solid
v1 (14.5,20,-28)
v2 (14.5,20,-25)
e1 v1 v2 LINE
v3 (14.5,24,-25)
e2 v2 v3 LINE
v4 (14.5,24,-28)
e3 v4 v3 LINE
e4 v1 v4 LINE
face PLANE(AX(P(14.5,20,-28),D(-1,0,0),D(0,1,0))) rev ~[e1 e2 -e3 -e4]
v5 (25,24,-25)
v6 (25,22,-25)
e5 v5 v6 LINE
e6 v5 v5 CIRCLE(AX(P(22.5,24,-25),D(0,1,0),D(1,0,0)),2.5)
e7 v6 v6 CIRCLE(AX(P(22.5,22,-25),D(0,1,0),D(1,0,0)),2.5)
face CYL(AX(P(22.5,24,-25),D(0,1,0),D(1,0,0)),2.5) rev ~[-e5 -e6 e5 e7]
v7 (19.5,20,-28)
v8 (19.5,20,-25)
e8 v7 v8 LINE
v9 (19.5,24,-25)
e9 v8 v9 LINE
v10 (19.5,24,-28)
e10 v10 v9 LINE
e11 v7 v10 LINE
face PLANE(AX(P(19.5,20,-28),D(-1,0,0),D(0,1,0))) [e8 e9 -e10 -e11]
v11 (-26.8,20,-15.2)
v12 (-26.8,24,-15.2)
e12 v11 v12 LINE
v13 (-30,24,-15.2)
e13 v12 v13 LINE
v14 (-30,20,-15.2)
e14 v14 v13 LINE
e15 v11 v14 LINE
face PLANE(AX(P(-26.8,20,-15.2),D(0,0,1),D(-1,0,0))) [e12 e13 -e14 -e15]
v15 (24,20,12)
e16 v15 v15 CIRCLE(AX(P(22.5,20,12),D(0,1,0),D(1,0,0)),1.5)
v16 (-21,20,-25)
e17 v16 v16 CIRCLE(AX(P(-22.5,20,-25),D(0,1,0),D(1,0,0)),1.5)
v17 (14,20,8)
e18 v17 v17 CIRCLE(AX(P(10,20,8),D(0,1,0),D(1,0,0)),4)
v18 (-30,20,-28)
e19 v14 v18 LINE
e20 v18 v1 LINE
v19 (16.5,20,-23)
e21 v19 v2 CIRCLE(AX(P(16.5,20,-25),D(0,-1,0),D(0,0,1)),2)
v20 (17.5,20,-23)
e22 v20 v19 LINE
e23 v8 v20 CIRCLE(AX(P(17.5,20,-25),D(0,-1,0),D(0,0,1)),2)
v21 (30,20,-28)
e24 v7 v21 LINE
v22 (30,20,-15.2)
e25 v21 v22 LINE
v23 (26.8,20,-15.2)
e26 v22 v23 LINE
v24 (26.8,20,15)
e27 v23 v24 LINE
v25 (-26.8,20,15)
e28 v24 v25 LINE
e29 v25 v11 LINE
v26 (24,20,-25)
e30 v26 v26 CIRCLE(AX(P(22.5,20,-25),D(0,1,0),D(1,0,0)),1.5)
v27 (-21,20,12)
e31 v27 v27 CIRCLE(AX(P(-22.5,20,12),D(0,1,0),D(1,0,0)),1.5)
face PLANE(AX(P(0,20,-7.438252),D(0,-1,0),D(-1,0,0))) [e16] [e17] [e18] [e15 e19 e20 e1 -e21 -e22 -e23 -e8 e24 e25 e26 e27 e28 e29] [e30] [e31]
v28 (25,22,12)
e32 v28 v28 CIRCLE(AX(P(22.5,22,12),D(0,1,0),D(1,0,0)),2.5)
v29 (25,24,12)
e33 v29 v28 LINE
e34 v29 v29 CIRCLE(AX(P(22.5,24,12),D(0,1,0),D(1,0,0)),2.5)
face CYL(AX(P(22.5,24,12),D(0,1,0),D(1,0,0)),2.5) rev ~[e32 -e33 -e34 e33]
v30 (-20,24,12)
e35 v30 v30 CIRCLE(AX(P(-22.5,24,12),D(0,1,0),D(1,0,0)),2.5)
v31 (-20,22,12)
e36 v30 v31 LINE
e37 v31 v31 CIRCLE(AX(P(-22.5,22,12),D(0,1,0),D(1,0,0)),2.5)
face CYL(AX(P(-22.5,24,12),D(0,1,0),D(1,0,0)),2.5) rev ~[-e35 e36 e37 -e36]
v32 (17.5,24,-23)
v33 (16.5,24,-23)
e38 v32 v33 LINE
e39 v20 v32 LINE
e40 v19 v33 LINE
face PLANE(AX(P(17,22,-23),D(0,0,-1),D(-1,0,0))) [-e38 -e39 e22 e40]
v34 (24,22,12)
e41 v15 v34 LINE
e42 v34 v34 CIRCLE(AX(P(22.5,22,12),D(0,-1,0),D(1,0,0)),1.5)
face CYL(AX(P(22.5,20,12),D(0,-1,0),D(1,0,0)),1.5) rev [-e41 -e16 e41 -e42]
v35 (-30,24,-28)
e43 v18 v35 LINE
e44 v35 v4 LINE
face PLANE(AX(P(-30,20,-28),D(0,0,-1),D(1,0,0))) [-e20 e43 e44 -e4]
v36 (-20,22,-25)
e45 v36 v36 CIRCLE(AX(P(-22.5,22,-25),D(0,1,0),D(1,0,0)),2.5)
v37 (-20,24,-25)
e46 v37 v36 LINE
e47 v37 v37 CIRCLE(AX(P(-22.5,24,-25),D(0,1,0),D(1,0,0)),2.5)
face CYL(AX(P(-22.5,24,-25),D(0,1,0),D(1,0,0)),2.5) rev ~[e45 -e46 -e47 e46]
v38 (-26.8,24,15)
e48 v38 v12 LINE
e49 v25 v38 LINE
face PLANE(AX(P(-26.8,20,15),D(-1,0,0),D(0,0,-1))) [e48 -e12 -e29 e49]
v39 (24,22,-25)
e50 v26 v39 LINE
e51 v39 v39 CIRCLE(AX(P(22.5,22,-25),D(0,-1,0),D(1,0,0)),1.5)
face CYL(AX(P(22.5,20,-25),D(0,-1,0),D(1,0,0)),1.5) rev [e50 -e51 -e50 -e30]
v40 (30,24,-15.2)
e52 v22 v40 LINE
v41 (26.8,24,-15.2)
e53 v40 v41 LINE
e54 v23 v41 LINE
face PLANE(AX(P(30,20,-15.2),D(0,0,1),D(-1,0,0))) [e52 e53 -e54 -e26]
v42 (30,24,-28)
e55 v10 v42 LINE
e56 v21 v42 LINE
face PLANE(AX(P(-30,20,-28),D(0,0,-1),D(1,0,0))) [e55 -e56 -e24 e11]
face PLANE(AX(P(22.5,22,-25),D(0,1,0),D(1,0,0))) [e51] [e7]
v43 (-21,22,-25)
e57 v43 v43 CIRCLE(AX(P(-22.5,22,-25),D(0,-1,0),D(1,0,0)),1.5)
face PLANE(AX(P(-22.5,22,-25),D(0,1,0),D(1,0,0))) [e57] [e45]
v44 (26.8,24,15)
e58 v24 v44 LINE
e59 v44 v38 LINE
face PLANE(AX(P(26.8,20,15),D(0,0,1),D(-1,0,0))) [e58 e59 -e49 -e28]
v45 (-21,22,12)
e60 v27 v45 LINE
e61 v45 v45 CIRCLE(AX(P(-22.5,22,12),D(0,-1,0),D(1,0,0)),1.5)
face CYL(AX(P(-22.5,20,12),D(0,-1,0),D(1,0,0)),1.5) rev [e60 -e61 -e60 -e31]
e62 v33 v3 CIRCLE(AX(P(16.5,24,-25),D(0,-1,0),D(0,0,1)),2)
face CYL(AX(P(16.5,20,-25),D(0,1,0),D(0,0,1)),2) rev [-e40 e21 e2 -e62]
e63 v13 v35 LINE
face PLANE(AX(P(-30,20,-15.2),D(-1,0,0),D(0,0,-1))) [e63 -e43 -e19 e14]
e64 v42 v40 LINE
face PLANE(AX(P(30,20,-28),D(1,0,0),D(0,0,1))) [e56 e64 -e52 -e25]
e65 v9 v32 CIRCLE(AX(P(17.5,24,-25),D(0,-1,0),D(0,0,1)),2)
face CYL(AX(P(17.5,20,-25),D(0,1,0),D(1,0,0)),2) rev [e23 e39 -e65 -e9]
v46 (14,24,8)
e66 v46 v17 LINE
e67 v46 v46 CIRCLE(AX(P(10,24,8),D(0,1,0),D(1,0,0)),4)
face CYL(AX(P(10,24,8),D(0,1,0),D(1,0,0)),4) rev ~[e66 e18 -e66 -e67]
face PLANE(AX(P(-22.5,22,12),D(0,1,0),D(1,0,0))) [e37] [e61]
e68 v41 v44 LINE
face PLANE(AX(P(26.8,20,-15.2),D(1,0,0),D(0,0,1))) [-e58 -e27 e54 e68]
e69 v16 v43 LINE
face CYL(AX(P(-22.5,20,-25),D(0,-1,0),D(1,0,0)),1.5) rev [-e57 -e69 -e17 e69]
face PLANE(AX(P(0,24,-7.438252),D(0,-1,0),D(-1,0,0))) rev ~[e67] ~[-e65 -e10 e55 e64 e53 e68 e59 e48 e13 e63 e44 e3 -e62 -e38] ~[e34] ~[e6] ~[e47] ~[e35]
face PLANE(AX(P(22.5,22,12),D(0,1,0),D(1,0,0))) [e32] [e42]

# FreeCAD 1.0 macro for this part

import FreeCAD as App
import Part
import Sketcher

V = App.Vector
Q = App.Units.Quantity


def edges_at(feature, points):
    """Names of the edges that pass closest to the given points."""
    edges = feature.Shape.Edges
    near = lambda p: min(range(len(edges)), key=lambda i: edges[i].distToShape(Part.Vertex(*p))[0])
    return sorted({f"Edge{near(p) + 1}" for p in points})


def add_polygon(sketch, points):
    """Adds a closed chain of lines whose ends are joined by coincident constraints."""
    first, n = sketch.GeometryCount, len(points)
    for a, b in zip(points, points[1:] + points[:1]):
        sketch.addGeometry(Part.LineSegment(App.Vector(*a, 0), App.Vector(*b, 0)), False)
    for i in range(n):
        sketch.addConstraint(Sketcher.Constraint("Coincident", first + i, 2, first + (i + 1) % n, 1))

doc = App.newDocument("Part")
body = doc.addObject("PartDesign::Body", "Body")

sketch1 = body.newObject("Sketcher::SketchObject", "Sketch")
sketch1.AttachmentSupport = (doc.getObject("XZ_Plane"), [""])
sketch1.MapMode = "FlatFace"
sketch1.AttachmentOffset = App.Placement(V(0, 0, -20), App.Rotation())
add_polygon(sketch1, [(30, -28), (-30, -28), (-30, -15.2), (-26.8, -15.2), (-26.8, 15), (26.8, 15), (26.8, -15.2), (30, -15.2)])
sketch1.addGeometry(Part.Circle(V(22.5, 12, 0), V(0, 0, 1), 1.5), False)
sketch1.addGeometry(Part.Circle(V(-22.5, 12, 0), V(0, 0, 1), 1.5), False)
sketch1.addGeometry(Part.Circle(V(22.5, -25, 0), V(0, 0, 1), 1.5), False)
sketch1.addGeometry(Part.Circle(V(-22.5, -25, 0), V(0, 0, 1), 1.5), False)
sketch1.addConstraint(Sketcher.Constraint("Horizontal", 0))
sketch1.addConstraint(Sketcher.Constraint("Vertical", 1))
sketch1.addConstraint(Sketcher.Constraint("Horizontal", 2))
sketch1.addConstraint(Sketcher.Constraint("Vertical", 3))
sketch1.addConstraint(Sketcher.Constraint("Horizontal", 4))
sketch1.addConstraint(Sketcher.Constraint("Vertical", 5))
sketch1.addConstraint(Sketcher.Constraint("Horizontal", 6))
sketch1.addConstraint(Sketcher.Constraint("Vertical", 7))
sketch1.addConstraint(Sketcher.Constraint("Equal", 8, 9))
sketch1.addConstraint(Sketcher.Constraint("Equal", 9, 10))
sketch1.addConstraint(Sketcher.Constraint("Equal", 10, 11))
sketch1.addConstraint(Sketcher.Constraint("Symmetric", 8, 3, 9, 3, -2))
sketch1.addConstraint(Sketcher.Constraint("Symmetric", 10, 3, 11, 3, -2))
sketch1.addConstraint(Sketcher.Constraint("Symmetric", 2, 2, 5, 2, -2))
sketch1.addConstraint(Sketcher.Constraint("Vertical", 8, 3, 10, 3))
sketch1.addConstraint(Sketcher.Constraint("Equal", 2, 6))
sketch1.addConstraint(Sketcher.Constraint("Diameter", 8, Q("3 mm")))
sketch1.addConstraint(Sketcher.Constraint("DistanceX", 0, 2, 0, 1, Q("60 mm")))
sketch1.addConstraint(Sketcher.Constraint("DistanceX", 2, 1, 2, 2, Q("3.2 mm")))
sketch1.addConstraint(Sketcher.Constraint("DistanceY", 1, 1, 1, 2, Q("12.8 mm")))
sketch1.addConstraint(Sketcher.Constraint("DistanceY", 3, 1, 3, 2, Q("30.2 mm")))
sketch1.addConstraint(Sketcher.Constraint("DistanceY", -1, 1, 8, 3, Q("12 mm")))
sketch1.addConstraint(Sketcher.Constraint("DistanceY", 10, 3, -1, 1, Q("25 mm")))
sketch1.addConstraint(Sketcher.Constraint("DistanceY", 0, 2, -1, 1, Q("28 mm")))
sketch1.addConstraint(Sketcher.Constraint("DistanceX", 9, 3, 8, 3, Q("45 mm")))
pad1 = body.newObject("PartDesign::Pad", "Pad")
pad1.Profile = sketch1
pad1.Length = 4
pad1.Reversed = True

sketch2 = body.newObject("Sketcher::SketchObject", "Sketch001")
sketch2.AttachmentSupport = (doc.getObject("XZ_Plane"), [""])
sketch2.MapMode = "FlatFace"
sketch2.AttachmentOffset = App.Placement(V(0, 0, -24), App.Rotation())
sketch2.addGeometry(Part.Circle(V(-22.5, -25, 0), V(0, 0, 1), 2.5), False)
sketch2.addGeometry(Part.Circle(V(22.5, -25, 0), V(0, 0, 1), 2.5), False)
sketch2.addGeometry(Part.Circle(V(22.5, 12, 0), V(0, 0, 1), 2.5), False)
sketch2.addGeometry(Part.Circle(V(-22.5, 12, 0), V(0, 0, 1), 2.5), False)
sketch2.addConstraint(Sketcher.Constraint("Equal", 0, 1))
sketch2.addConstraint(Sketcher.Constraint("Equal", 1, 2))
sketch2.addConstraint(Sketcher.Constraint("Equal", 2, 3))
sketch2.addConstraint(Sketcher.Constraint("Symmetric", 0, 3, 1, 3, -2))
sketch2.addConstraint(Sketcher.Constraint("Symmetric", 2, 3, 3, 3, -2))
sketch2.addConstraint(Sketcher.Constraint("Vertical", 1, 3, 2, 3))
sketch2.addConstraint(Sketcher.Constraint("Diameter", 0, Q("5 mm")))
sketch2.addConstraint(Sketcher.Constraint("DistanceY", 0, 3, -1, 1, Q("25 mm")))
sketch2.addConstraint(Sketcher.Constraint("DistanceY", -1, 1, 2, 3, Q("12 mm")))
sketch2.addConstraint(Sketcher.Constraint("DistanceX", 0, 3, 1, 3, Q("45 mm")))
pocket1 = body.newObject("PartDesign::Pocket", "Pocket")
pocket1.Profile = sketch2
pocket1.Length = 2
pocket1.Reversed = True

sketch3 = body.newObject("Sketcher::SketchObject", "Sketch002")
sketch3.AttachmentSupport = (doc.getObject("XY_Plane"), [""])
sketch3.MapMode = "FlatFace"
sketch3.AttachmentOffset = App.Placement(V(0, 0, -28), App.Rotation())
add_polygon(sketch3, [(19.5, 24), (19.5, 20), (14.5, 20), (14.5, 24)])
sketch3.addConstraint(Sketcher.Constraint("Vertical", 0))
sketch3.addConstraint(Sketcher.Constraint("Horizontal", 1))
sketch3.addConstraint(Sketcher.Constraint("Vertical", 2))
sketch3.addConstraint(Sketcher.Constraint("Horizontal", 3))
sketch3.addConstraint(Sketcher.Constraint("DistanceX", 1, 2, 1, 1, Q("5 mm")))
sketch3.addConstraint(Sketcher.Constraint("DistanceY", 0, 2, 0, 1, Q("4 mm")))
sketch3.addConstraint(Sketcher.Constraint("DistanceY", -1, 1, 0, 2, Q("20 mm")))
sketch3.addConstraint(Sketcher.Constraint("DistanceX", -1, 1, 0, 2, Q("19.5 mm")))
pocket2 = body.newObject("PartDesign::Pocket", "Pocket001")
pocket2.Profile = sketch3
pocket2.Length = 5
pocket2.Reversed = True
doc.recompute()

fillet = body.newObject("PartDesign::Fillet", "Fillet")
fillet.Base = (pocket2, edges_at(pocket2, [(19.5, 22, -23)]))
fillet.Radius = 2
doc.recompute()

fillet2 = body.newObject("PartDesign::Fillet", "Fillet001")
fillet2.Base = (fillet, edges_at(fillet, [(14.5, 22, -23)]))
fillet2.Radius = 2

sketch4 = body.newObject("Sketcher::SketchObject", "Sketch003")
sketch4.AttachmentSupport = (doc.getObject("XZ_Plane"), [""])
sketch4.MapMode = "FlatFace"
sketch4.AttachmentOffset = App.Placement(V(0, 0, -24), App.Rotation())
sketch4.addGeometry(Part.Circle(V(10, 8, 0), V(0, 0, 1), 4), False)
sketch4.addConstraint(Sketcher.Constraint("Diameter", 0, Q("8 mm")))
sketch4.addConstraint(Sketcher.Constraint("DistanceX", -1, 1, 0, 3, Q("10 mm")))
sketch4.addConstraint(Sketcher.Constraint("DistanceY", -1, 1, 0, 3, Q("8 mm")))
pocket3 = body.newObject("PartDesign::Pocket", "Pocket002")
pocket3.Profile = sketch4
pocket3.Length = 4
pocket3.Reversed = True

doc.recompute()
